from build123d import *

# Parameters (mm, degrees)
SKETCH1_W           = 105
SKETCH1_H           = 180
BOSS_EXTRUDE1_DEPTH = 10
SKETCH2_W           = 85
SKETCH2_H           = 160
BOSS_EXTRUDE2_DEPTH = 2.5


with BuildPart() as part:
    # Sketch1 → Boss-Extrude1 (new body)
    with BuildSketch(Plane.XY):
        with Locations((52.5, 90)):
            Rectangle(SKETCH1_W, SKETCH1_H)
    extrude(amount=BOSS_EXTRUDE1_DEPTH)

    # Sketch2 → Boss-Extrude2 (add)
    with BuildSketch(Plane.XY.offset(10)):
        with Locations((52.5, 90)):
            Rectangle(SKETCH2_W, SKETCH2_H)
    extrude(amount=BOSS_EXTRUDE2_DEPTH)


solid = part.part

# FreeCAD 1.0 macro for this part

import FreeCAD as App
import Part
import Sketcher


def add_polygon(sketch, points):
    """Adds a closed chain of lines whose ends are joined by coincident constraints."""
    first, n = sketch.GeometryCount, len(points)
    for a, b in zip(points, points[1:] + points[:1]):
        sketch.addGeometry(Part.LineSegment(App.Vector(*a, 0), App.Vector(*b, 0)), False)
    for i in range(n):
        sketch.addConstraint(Sketcher.Constraint("Coincident", first + i, 2, first + (i + 1) % n, 1))

doc = App.newDocument("Part")
params = doc.addObject("Spreadsheet::Sheet", "Params")
for row, (alias, value) in enumerate([
    ("sketch1_width", "105 mm"),
    ("sketch1_height", "180 mm"),
    ("pad1_length", "10 mm"),
    ("sketch2_width", "85 mm"),
    ("sketch2_height", "160 mm"),
    ("pad2_length", "2.5 mm"),
], start=1):
    params.set(f"A{row}", alias)
    params.set(f"B{row}", "=" + value)
    params.setAlias(f"B{row}", alias)

body = doc.addObject("PartDesign::Body", "Body")

sketch1 = body.newObject("Sketcher::SketchObject", "Sketch")
sketch1.AttachmentSupport = (doc.getObject("XY_Plane"), [""])
sketch1.MapMode = "FlatFace"
add_polygon(sketch1, [(0, 180), (0, 0), (105, 0), (105, 180)])
sketch1.addConstraint(Sketcher.Constraint("Vertical", 0))
sketch1.addConstraint(Sketcher.Constraint("Horizontal", 1))
sketch1.addConstraint(Sketcher.Constraint("Vertical", 2))
sketch1.addConstraint(Sketcher.Constraint("Horizontal", 3))
sketch1.addConstraint(Sketcher.Constraint("Coincident", 0, 2, -1, 1))
sketch1.addConstraint(Sketcher.Constraint("DistanceX", 1, 1, 1, 2, 105.0))
sketch1.addConstraint(Sketcher.Constraint("DistanceY", 0, 2, 0, 1, 180.0))
sketch1.setExpression("Constraints[9]", "Params.sketch1_width")
sketch1.setExpression("Constraints[10]", "Params.sketch1_height")
pad1 = body.newObject("PartDesign::Pad", "Pad")
pad1.Profile = sketch1
pad1.setExpression("Length", "Params.pad1_length")

sketch2 = body.newObject("Sketcher::SketchObject", "Sketch001")
sketch2.AttachmentSupport = (doc.getObject("XY_Plane"), [""])
sketch2.MapMode = "FlatFace"
sketch2.AttachmentOffset = App.Placement(App.Vector(0, 0, 10), App.Rotation())
add_polygon(sketch2, [(10, 170), (10, 10), (95, 10), (95, 170)])
sketch2.addConstraint(Sketcher.Constraint("Vertical", 0))
sketch2.addConstraint(Sketcher.Constraint("Horizontal", 1))
sketch2.addConstraint(Sketcher.Constraint("Vertical", 2))
sketch2.addConstraint(Sketcher.Constraint("Horizontal", 3))
sketch2.addConstraint(Sketcher.Constraint("DistanceX", 1, 1, 1, 2, 85.0))
sketch2.addConstraint(Sketcher.Constraint("DistanceY", 0, 2, 0, 1, 160.0))
sketch2.addConstraint(Sketcher.Constraint("DistanceX", -1, 1, 0, 2, 10.0))
sketch2.addConstraint(Sketcher.Constraint("DistanceY", -1, 1, 0, 2, 10.0))
sketch2.setExpression("Constraints[8]", "Params.sketch2_width")
sketch2.setExpression("Constraints[9]", "Params.sketch2_height")
pad2 = body.newObject("PartDesign::Pad", "Pad001")
pad2.Profile = sketch2
pad2.setExpression("Length", "Params.pad2_length")

doc.recompute()
